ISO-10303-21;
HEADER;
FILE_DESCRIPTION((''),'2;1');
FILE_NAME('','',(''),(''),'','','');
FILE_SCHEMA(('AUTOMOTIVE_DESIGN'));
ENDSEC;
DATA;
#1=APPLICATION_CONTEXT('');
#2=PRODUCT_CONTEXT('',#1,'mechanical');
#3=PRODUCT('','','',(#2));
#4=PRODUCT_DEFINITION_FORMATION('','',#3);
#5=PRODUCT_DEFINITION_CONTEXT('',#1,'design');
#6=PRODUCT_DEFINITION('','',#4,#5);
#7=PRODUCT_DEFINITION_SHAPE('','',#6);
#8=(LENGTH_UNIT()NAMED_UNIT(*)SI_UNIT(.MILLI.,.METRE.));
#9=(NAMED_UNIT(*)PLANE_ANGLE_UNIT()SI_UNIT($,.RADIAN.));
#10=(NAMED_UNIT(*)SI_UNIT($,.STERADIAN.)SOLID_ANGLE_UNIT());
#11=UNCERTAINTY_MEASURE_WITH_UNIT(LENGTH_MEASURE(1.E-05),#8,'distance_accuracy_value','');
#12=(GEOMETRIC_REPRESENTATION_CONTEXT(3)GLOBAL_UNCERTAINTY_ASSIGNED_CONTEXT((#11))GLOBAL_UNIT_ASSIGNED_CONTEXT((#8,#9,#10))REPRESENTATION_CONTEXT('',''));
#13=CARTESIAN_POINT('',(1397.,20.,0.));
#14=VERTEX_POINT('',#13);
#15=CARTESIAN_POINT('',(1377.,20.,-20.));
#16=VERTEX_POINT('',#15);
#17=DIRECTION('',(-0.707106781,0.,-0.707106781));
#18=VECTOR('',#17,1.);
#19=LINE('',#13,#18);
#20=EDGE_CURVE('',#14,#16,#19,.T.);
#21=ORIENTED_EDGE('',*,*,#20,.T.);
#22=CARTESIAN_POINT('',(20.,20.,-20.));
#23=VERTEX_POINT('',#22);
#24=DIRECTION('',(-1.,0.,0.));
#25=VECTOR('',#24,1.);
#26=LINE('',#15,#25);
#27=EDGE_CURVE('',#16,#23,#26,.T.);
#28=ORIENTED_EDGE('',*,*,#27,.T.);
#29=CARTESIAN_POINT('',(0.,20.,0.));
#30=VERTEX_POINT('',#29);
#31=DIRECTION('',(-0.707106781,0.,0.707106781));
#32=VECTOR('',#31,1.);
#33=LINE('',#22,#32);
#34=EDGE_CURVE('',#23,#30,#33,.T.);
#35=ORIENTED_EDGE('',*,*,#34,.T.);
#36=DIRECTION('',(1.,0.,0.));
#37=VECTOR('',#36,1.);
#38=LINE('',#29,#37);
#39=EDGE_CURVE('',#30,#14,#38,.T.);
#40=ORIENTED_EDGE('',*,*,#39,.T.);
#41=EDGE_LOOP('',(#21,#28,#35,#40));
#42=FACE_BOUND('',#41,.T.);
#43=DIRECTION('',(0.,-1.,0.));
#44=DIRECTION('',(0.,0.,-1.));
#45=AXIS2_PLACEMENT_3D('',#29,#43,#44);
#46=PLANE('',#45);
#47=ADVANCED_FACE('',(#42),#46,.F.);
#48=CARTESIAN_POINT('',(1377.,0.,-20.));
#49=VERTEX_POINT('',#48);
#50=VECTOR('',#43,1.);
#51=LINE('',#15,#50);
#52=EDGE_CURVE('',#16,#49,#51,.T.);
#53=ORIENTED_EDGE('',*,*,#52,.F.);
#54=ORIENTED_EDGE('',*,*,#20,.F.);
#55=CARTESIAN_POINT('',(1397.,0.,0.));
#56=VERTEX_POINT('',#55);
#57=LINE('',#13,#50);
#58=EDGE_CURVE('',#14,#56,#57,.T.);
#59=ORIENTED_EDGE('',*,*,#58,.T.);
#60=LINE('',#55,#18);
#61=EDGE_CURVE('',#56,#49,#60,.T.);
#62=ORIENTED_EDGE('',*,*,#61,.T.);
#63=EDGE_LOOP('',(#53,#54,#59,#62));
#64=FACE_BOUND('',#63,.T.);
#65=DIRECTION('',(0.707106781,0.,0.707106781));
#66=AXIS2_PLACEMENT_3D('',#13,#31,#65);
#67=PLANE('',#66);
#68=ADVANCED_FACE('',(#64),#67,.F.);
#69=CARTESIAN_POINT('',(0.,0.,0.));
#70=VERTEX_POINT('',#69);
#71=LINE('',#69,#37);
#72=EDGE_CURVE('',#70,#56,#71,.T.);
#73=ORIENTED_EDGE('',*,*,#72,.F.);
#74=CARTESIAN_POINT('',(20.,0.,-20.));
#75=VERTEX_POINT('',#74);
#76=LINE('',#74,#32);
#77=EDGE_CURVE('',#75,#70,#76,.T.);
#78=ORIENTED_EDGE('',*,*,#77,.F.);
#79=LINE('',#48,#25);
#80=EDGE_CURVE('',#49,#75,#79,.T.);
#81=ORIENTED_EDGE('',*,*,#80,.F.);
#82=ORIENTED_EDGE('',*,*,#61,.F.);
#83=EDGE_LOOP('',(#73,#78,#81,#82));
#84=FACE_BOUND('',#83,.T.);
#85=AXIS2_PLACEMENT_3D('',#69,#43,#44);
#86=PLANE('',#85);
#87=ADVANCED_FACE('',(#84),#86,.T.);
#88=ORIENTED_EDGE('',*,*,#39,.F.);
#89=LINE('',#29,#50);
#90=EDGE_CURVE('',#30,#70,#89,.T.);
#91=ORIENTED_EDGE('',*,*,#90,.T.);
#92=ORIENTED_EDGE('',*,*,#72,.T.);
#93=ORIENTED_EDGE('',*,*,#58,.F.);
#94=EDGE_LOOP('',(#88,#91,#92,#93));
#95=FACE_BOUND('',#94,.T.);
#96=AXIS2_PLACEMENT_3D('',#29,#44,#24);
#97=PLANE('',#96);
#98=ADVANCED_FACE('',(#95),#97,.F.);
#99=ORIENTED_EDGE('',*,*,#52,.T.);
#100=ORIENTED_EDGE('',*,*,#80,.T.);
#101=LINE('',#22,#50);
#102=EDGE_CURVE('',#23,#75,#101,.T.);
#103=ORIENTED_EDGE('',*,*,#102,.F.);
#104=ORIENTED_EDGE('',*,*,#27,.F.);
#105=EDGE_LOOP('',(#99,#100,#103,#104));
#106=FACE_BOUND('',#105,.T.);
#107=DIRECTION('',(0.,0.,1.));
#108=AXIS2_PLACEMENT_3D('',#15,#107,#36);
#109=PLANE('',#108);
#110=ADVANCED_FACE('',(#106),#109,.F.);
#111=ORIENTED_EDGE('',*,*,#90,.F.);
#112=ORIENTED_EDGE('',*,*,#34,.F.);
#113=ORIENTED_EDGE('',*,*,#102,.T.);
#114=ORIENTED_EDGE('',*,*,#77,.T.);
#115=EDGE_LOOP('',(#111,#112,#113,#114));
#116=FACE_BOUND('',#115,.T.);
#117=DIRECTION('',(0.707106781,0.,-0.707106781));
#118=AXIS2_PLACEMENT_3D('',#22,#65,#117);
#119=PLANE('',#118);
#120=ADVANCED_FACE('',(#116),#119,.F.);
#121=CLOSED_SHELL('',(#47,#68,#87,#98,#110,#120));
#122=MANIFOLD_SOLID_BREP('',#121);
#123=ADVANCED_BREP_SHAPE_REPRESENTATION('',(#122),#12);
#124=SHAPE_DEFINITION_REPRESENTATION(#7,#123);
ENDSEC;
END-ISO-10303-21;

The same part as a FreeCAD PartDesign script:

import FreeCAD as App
import Part
import Sketcher

V = App.Vector
Q = App.Units.Quantity

doc = App.newDocument("Part")
body = doc.addObject("PartDesign::Body", "Body")

sketch1 = body.newObject("Sketcher::SketchObject", "Sketch")
sketch1.AttachmentSupport = (doc.getObject("XZ_Plane"), [""])
sketch1.MapMode = "FlatFace"
sketch1.addGeometry(Part.LineSegment(V(0, 0, 0), V(1397, 0, 0)), False)
sketch1.addGeometry(Part.LineSegment(V(1397, 0, 0), V(1377, -20, 0)), False)
sketch1.addGeometry(Part.LineSegment(V(1377, -20, 0), V(20, -20, 0)), False)
sketch1.addGeometry(Part.LineSegment(V(20, -20, 0), V(0, 0, 0)), False)
sketch1.addConstraint(Sketcher.Constraint("Coincident", 0, 2, 1, 1))
sketch1.addConstraint(Sketcher.Constraint("Coincident", 1, 2, 2, 1))
sketch1.addConstraint(Sketcher.Constraint("Coincident", 2, 2, 3, 1))
sketch1.addConstraint(Sketcher.Constraint("Coincident", 3, 2, 0, 1))
sketch1.addConstraint(Sketcher.Constraint("Horizontal", 0))
sketch1.addConstraint(Sketcher.Constraint("Horizontal", 2))
sketch1.addConstraint(Sketcher.Constraint("Coincident", 3, 2, -1, 1))
sketch1.addConstraint(Sketcher.Constraint("Perpendicular", 1, 3))
sketch1.addConstraint(Sketcher.Constraint("Equal", 1, 3))
sketch1.addConstraint(Sketcher.Constraint("DistanceX", 0, 1, 0, 2, Q("1397 mm")))
sketch1.addConstraint(Sketcher.Constraint("DistanceX", 2, 2, 2, 1, Q("1357 mm")))
pad1 = body.newObject("PartDesign::Pad", "Pad")
pad1.Profile = sketch1
pad1.Length = 20
pad1.Reversed = True

doc.recompute()
